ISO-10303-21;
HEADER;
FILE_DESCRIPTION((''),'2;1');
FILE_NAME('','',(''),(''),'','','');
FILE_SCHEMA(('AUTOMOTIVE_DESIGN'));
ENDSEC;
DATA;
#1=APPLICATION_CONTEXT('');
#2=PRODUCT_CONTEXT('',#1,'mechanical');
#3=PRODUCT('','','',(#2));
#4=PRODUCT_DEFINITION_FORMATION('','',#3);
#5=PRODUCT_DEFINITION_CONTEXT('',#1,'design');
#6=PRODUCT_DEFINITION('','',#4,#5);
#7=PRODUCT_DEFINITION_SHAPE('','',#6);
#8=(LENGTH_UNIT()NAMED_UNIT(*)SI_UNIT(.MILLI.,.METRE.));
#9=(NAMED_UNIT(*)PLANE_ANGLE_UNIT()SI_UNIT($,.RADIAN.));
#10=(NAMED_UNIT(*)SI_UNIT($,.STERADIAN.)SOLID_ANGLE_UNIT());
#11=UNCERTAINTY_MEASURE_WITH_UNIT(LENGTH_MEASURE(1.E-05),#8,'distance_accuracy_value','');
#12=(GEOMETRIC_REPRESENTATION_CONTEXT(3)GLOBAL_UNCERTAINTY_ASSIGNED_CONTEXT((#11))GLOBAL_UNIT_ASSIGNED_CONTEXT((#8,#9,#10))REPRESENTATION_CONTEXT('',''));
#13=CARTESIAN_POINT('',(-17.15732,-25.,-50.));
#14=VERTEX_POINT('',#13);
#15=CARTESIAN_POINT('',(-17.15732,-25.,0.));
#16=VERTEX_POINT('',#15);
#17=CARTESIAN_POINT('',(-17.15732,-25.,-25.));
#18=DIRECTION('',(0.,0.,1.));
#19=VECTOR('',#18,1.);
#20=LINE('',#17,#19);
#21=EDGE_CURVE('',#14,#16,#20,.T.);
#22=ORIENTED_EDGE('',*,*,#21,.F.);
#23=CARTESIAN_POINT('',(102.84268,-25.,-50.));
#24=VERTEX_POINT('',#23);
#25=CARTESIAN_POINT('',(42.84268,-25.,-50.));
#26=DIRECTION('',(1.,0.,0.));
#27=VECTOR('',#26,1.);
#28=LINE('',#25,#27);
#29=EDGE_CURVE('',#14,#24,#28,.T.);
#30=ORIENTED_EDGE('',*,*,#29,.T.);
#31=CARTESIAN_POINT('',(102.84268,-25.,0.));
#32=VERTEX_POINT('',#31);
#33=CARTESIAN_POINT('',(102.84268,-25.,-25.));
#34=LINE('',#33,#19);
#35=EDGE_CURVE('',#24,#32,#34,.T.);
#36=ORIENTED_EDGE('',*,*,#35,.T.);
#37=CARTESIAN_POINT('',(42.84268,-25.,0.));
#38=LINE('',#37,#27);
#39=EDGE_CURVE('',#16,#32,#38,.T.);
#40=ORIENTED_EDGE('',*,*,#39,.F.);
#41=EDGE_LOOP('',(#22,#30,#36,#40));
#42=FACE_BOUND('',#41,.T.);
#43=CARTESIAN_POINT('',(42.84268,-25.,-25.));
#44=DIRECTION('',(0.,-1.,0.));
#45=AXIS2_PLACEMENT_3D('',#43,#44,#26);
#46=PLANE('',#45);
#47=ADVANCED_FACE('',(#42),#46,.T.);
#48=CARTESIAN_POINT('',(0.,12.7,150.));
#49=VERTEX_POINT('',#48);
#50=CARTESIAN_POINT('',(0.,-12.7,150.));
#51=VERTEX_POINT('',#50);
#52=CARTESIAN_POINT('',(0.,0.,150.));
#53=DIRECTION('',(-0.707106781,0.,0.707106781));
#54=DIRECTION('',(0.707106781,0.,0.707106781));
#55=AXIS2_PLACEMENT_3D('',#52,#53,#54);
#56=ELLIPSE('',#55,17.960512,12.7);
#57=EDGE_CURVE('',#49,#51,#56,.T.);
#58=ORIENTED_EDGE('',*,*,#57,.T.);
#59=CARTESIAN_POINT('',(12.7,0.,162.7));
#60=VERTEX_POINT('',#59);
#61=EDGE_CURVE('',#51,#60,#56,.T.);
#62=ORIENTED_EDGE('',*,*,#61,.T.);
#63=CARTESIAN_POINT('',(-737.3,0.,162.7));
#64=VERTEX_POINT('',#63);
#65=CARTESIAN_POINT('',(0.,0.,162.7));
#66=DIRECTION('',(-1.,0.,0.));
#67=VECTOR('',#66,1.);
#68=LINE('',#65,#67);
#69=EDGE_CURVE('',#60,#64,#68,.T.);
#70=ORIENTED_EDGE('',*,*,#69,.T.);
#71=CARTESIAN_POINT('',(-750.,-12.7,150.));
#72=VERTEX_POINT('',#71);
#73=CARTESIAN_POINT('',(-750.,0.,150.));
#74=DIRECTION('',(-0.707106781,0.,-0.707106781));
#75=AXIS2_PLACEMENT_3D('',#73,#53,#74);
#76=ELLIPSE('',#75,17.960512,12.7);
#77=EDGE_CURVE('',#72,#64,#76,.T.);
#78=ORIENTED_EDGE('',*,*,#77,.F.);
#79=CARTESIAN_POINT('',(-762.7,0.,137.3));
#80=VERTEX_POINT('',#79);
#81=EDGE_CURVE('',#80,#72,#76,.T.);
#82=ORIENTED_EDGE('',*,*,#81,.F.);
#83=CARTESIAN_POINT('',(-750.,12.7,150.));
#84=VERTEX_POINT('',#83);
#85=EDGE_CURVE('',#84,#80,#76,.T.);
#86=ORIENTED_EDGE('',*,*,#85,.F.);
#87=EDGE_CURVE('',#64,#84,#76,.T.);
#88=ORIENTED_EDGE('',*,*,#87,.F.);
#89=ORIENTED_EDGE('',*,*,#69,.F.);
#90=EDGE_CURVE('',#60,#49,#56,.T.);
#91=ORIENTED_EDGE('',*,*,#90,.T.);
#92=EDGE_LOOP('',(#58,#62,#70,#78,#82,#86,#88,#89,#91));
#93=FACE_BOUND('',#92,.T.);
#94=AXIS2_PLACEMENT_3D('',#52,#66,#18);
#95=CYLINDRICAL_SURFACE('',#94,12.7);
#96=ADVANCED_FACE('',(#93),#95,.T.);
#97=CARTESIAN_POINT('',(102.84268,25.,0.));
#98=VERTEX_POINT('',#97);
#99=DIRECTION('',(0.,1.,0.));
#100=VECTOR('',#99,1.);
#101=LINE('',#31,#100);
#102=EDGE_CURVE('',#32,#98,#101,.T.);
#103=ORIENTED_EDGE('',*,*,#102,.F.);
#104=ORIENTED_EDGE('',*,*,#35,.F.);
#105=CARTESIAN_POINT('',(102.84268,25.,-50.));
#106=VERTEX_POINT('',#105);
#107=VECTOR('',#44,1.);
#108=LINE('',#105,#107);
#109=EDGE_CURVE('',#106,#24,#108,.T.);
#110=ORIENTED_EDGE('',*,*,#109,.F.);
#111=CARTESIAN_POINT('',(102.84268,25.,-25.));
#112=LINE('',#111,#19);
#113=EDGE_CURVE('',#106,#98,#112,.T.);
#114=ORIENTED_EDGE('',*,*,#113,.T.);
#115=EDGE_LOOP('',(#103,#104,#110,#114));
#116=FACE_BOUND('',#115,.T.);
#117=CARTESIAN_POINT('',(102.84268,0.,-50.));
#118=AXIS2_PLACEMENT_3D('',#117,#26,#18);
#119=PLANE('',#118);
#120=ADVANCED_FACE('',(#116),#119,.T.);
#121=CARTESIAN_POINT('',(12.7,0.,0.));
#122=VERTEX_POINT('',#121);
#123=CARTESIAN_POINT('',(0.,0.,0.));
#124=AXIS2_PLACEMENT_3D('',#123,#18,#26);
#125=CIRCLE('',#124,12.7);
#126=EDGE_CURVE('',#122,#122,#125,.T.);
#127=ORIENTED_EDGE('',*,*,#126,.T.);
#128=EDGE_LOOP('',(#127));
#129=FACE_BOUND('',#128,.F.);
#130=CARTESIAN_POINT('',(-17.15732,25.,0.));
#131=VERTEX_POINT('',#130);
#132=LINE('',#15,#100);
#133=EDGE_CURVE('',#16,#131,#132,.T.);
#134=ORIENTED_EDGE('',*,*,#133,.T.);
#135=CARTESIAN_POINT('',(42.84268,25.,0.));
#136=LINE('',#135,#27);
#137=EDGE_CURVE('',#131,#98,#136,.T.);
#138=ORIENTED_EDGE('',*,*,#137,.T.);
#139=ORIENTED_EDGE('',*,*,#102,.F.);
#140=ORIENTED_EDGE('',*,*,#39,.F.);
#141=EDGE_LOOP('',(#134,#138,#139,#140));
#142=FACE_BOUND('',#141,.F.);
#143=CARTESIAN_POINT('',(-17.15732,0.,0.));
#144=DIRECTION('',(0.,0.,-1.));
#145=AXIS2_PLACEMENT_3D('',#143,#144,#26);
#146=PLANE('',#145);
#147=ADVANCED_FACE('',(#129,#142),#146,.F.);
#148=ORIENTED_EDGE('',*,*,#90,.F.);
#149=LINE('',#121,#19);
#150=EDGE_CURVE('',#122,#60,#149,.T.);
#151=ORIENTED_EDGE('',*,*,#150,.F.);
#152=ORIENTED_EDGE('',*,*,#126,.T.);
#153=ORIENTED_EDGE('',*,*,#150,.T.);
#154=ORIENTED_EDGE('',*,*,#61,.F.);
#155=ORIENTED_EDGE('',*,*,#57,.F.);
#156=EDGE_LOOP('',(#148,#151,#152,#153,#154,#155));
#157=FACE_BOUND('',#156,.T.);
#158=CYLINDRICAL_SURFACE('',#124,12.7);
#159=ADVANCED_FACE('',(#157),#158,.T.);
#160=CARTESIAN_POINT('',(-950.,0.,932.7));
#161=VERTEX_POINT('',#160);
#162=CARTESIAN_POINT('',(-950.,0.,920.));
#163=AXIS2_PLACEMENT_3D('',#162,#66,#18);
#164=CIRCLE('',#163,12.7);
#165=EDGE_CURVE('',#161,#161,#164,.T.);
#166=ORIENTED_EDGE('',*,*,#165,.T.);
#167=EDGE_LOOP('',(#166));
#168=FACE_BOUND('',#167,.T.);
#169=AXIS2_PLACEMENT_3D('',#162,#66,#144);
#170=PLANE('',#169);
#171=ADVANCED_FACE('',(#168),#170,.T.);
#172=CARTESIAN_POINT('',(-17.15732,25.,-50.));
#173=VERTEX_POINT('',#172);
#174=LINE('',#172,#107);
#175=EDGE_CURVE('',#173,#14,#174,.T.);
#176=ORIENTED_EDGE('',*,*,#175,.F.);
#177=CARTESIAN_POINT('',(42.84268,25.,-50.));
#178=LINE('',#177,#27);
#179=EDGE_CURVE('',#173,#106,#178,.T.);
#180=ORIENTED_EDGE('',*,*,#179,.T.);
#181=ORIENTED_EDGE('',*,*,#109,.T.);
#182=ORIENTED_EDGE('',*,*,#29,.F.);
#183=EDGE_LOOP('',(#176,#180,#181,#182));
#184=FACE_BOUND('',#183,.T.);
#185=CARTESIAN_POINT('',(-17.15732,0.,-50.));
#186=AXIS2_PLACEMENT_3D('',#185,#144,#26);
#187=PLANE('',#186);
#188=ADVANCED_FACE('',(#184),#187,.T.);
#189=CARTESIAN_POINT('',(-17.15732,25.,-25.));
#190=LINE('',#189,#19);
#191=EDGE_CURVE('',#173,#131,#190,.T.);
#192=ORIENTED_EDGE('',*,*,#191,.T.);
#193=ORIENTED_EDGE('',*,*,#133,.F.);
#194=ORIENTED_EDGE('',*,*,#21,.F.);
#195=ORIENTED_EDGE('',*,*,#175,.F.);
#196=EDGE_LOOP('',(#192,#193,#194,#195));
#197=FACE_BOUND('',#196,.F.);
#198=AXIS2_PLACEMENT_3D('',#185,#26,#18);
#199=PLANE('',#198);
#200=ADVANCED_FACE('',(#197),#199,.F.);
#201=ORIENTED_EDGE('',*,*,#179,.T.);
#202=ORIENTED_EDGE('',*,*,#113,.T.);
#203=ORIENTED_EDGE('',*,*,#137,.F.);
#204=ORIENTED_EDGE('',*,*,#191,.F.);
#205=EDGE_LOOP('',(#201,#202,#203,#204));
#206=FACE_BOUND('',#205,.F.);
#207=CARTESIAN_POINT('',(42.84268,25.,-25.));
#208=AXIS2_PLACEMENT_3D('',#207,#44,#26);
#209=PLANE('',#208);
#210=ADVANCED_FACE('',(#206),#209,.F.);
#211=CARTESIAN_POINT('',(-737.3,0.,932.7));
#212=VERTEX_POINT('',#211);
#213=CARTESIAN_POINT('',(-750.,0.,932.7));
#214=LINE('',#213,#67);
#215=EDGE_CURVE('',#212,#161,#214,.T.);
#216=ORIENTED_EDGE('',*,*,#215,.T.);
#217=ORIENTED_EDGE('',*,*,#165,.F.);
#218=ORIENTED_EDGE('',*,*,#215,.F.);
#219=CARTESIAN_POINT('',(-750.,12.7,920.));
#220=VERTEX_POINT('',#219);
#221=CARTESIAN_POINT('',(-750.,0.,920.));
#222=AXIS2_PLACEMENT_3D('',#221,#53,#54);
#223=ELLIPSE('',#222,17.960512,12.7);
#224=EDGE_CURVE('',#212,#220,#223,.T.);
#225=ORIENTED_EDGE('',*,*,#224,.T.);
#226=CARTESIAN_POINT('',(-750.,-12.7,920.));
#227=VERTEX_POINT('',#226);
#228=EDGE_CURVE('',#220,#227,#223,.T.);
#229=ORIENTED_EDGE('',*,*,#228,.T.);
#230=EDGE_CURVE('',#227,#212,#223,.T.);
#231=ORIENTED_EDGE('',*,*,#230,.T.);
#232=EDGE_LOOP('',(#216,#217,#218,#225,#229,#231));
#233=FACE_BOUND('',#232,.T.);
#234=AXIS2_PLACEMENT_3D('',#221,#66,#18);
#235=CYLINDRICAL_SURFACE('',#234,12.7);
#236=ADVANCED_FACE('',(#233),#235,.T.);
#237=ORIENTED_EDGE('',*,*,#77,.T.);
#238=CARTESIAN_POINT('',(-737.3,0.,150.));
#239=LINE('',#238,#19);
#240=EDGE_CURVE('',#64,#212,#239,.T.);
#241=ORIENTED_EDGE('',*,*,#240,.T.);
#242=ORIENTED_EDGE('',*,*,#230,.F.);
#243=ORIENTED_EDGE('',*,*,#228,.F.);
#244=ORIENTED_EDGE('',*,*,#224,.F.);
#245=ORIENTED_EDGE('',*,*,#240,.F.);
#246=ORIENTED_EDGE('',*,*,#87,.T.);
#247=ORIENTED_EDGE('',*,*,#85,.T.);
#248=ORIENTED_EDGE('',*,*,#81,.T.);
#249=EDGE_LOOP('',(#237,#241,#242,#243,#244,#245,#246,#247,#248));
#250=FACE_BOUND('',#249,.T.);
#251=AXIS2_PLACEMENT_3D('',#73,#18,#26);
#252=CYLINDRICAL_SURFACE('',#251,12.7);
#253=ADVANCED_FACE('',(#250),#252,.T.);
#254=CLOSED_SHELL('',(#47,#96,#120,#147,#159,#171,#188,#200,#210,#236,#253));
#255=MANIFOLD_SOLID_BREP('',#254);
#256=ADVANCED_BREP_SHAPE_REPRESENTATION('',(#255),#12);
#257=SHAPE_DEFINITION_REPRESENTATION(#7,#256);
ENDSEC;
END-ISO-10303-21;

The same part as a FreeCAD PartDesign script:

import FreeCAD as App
import Part
import Sketcher
from FreeCAD import Vector

doc = App.newDocument("Part")
body = doc.addObject("PartDesign::Body", "Body")

sketch1 = doc.addObject("Sketcher::SketchObject", "Sketch")
body.addObject(sketch1)
sketch1.AttachmentSupport = (doc.XZ_Plane, [""])
sketch1.MapMode = "FlatFace"
sketch1.addGeometry(Part.LineSegment(Vector(-17, 0, 0), Vector(-17, -50, 0)), False)
sketch1.addGeometry(Part.LineSegment(Vector(-17, -50, 0), Vector(103, -50, 0)), False)
sketch1.addGeometry(Part.LineSegment(Vector(103, -50, 0), Vector(103, 0, 0)), False)
sketch1.addGeometry(Part.LineSegment(Vector(103, 0, 0), Vector(-17, 0, 0)), False)
sketch1.addConstraint(Sketcher.Constraint("Coincident", 0, 2, 1, 1))
sketch1.addConstraint(Sketcher.Constraint("Coincident", 1, 2, 2, 1))
sketch1.addConstraint(Sketcher.Constraint("Coincident", 2, 2, 3, 1))
sketch1.addConstraint(Sketcher.Constraint("Coincident", 3, 2, 0, 1))
sketch1.addConstraint(Sketcher.Constraint("Vertical", 0))
sketch1.addConstraint(Sketcher.Constraint("Horizontal", 1))
sketch1.addConstraint(Sketcher.Constraint("Vertical", 2))
sketch1.addConstraint(Sketcher.Constraint("Horizontal", 3))
sketch1.addConstraint(Sketcher.Constraint("PointOnObject", 2, 2, -1))
sketch1.addConstraint(Sketcher.Constraint("DistanceX", 1, 1, 1, 2, 120.0))
sketch1.addConstraint(Sketcher.Constraint("DistanceY", 0, 2, 0, 1, 50.0))
sketch1.addConstraint(Sketcher.Constraint("DistanceX", 0, 2, -1, 1, 17.15732))
pad1 = doc.addObject("PartDesign::Pad", "Pad")
body.addObject(pad1)
pad1.Profile = sketch1
pad1.Type = "TwoLengths"
pad1.Length = 25
pad1.Length2 = 25

sketch2 = doc.addObject("Sketcher::SketchObject", "Sketch001")
body.addObject(sketch2)
sketch2.AttachmentSupport = (doc.XY_Plane, [""])
sketch2.MapMode = "FlatFace"
sketch2.addGeometry(Part.Circle(Vector(0, 0, 0), Vector(0, 0, 1), 13), False)
sketch2.addConstraint(Sketcher.Constraint("Coincident", 0, 3, -1, 1))
sketch2.addConstraint(Sketcher.Constraint("Diameter", 0, 25.4))

sketch3 = doc.addObject("Sketcher::SketchObject", "Sketch002")
body.addObject(sketch3)
sketch3.AttachmentSupport = (doc.XZ_Plane, [""])
sketch3.MapMode = "FlatFace"
sketch3.addGeometry(Part.LineSegment(Vector(0, 0, 0), Vector(0, 150, 0)), False)
sketch3.addGeometry(Part.LineSegment(Vector(0, 150, 0), Vector(-750, 150, 0)), False)
sketch3.addGeometry(Part.LineSegment(Vector(-750, 150, 0), Vector(-750, 920, 0)), False)
sketch3.addGeometry(Part.LineSegment(Vector(-750, 920, 0), Vector(-950, 920, 0)), False)
sketch3.addConstraint(Sketcher.Constraint("Coincident", 0, 2, 1, 1))
sketch3.addConstraint(Sketcher.Constraint("Coincident", 1, 2, 2, 1))
sketch3.addConstraint(Sketcher.Constraint("Coincident", 2, 2, 3, 1))
sketch3.addConstraint(Sketcher.Constraint("Vertical", 0))
sketch3.addConstraint(Sketcher.Constraint("Horizontal", 1))
sketch3.addConstraint(Sketcher.Constraint("Vertical", 2))
sketch3.addConstraint(Sketcher.Constraint("Horizontal", 3))
sketch3.addConstraint(Sketcher.Constraint("Coincident", 0, 1, -1, 1))
sketch3.addConstraint(Sketcher.Constraint("DistanceX", 1, 2, 1, 1, 750.0))
sketch3.addConstraint(Sketcher.Constraint("DistanceX", 3, 2, 3, 1, 200.0))
sketch3.addConstraint(Sketcher.Constraint("DistanceY", 0, 1, 0, 2, 150.0))
sketch3.addConstraint(Sketcher.Constraint("DistanceY", 2, 1, 2, 2, 770.0))
doc.recompute()

additivepipe = doc.addObject("PartDesign::AdditivePipe", "AdditivePipe")
body.addObject(additivepipe)
additivepipe.Profile = sketch2
additivepipe.Spine = (sketch3, ["Edge1", "Edge2", "Edge3", "Edge4"])
additivepipe.Transition = "Right corner"

doc.recompute()
